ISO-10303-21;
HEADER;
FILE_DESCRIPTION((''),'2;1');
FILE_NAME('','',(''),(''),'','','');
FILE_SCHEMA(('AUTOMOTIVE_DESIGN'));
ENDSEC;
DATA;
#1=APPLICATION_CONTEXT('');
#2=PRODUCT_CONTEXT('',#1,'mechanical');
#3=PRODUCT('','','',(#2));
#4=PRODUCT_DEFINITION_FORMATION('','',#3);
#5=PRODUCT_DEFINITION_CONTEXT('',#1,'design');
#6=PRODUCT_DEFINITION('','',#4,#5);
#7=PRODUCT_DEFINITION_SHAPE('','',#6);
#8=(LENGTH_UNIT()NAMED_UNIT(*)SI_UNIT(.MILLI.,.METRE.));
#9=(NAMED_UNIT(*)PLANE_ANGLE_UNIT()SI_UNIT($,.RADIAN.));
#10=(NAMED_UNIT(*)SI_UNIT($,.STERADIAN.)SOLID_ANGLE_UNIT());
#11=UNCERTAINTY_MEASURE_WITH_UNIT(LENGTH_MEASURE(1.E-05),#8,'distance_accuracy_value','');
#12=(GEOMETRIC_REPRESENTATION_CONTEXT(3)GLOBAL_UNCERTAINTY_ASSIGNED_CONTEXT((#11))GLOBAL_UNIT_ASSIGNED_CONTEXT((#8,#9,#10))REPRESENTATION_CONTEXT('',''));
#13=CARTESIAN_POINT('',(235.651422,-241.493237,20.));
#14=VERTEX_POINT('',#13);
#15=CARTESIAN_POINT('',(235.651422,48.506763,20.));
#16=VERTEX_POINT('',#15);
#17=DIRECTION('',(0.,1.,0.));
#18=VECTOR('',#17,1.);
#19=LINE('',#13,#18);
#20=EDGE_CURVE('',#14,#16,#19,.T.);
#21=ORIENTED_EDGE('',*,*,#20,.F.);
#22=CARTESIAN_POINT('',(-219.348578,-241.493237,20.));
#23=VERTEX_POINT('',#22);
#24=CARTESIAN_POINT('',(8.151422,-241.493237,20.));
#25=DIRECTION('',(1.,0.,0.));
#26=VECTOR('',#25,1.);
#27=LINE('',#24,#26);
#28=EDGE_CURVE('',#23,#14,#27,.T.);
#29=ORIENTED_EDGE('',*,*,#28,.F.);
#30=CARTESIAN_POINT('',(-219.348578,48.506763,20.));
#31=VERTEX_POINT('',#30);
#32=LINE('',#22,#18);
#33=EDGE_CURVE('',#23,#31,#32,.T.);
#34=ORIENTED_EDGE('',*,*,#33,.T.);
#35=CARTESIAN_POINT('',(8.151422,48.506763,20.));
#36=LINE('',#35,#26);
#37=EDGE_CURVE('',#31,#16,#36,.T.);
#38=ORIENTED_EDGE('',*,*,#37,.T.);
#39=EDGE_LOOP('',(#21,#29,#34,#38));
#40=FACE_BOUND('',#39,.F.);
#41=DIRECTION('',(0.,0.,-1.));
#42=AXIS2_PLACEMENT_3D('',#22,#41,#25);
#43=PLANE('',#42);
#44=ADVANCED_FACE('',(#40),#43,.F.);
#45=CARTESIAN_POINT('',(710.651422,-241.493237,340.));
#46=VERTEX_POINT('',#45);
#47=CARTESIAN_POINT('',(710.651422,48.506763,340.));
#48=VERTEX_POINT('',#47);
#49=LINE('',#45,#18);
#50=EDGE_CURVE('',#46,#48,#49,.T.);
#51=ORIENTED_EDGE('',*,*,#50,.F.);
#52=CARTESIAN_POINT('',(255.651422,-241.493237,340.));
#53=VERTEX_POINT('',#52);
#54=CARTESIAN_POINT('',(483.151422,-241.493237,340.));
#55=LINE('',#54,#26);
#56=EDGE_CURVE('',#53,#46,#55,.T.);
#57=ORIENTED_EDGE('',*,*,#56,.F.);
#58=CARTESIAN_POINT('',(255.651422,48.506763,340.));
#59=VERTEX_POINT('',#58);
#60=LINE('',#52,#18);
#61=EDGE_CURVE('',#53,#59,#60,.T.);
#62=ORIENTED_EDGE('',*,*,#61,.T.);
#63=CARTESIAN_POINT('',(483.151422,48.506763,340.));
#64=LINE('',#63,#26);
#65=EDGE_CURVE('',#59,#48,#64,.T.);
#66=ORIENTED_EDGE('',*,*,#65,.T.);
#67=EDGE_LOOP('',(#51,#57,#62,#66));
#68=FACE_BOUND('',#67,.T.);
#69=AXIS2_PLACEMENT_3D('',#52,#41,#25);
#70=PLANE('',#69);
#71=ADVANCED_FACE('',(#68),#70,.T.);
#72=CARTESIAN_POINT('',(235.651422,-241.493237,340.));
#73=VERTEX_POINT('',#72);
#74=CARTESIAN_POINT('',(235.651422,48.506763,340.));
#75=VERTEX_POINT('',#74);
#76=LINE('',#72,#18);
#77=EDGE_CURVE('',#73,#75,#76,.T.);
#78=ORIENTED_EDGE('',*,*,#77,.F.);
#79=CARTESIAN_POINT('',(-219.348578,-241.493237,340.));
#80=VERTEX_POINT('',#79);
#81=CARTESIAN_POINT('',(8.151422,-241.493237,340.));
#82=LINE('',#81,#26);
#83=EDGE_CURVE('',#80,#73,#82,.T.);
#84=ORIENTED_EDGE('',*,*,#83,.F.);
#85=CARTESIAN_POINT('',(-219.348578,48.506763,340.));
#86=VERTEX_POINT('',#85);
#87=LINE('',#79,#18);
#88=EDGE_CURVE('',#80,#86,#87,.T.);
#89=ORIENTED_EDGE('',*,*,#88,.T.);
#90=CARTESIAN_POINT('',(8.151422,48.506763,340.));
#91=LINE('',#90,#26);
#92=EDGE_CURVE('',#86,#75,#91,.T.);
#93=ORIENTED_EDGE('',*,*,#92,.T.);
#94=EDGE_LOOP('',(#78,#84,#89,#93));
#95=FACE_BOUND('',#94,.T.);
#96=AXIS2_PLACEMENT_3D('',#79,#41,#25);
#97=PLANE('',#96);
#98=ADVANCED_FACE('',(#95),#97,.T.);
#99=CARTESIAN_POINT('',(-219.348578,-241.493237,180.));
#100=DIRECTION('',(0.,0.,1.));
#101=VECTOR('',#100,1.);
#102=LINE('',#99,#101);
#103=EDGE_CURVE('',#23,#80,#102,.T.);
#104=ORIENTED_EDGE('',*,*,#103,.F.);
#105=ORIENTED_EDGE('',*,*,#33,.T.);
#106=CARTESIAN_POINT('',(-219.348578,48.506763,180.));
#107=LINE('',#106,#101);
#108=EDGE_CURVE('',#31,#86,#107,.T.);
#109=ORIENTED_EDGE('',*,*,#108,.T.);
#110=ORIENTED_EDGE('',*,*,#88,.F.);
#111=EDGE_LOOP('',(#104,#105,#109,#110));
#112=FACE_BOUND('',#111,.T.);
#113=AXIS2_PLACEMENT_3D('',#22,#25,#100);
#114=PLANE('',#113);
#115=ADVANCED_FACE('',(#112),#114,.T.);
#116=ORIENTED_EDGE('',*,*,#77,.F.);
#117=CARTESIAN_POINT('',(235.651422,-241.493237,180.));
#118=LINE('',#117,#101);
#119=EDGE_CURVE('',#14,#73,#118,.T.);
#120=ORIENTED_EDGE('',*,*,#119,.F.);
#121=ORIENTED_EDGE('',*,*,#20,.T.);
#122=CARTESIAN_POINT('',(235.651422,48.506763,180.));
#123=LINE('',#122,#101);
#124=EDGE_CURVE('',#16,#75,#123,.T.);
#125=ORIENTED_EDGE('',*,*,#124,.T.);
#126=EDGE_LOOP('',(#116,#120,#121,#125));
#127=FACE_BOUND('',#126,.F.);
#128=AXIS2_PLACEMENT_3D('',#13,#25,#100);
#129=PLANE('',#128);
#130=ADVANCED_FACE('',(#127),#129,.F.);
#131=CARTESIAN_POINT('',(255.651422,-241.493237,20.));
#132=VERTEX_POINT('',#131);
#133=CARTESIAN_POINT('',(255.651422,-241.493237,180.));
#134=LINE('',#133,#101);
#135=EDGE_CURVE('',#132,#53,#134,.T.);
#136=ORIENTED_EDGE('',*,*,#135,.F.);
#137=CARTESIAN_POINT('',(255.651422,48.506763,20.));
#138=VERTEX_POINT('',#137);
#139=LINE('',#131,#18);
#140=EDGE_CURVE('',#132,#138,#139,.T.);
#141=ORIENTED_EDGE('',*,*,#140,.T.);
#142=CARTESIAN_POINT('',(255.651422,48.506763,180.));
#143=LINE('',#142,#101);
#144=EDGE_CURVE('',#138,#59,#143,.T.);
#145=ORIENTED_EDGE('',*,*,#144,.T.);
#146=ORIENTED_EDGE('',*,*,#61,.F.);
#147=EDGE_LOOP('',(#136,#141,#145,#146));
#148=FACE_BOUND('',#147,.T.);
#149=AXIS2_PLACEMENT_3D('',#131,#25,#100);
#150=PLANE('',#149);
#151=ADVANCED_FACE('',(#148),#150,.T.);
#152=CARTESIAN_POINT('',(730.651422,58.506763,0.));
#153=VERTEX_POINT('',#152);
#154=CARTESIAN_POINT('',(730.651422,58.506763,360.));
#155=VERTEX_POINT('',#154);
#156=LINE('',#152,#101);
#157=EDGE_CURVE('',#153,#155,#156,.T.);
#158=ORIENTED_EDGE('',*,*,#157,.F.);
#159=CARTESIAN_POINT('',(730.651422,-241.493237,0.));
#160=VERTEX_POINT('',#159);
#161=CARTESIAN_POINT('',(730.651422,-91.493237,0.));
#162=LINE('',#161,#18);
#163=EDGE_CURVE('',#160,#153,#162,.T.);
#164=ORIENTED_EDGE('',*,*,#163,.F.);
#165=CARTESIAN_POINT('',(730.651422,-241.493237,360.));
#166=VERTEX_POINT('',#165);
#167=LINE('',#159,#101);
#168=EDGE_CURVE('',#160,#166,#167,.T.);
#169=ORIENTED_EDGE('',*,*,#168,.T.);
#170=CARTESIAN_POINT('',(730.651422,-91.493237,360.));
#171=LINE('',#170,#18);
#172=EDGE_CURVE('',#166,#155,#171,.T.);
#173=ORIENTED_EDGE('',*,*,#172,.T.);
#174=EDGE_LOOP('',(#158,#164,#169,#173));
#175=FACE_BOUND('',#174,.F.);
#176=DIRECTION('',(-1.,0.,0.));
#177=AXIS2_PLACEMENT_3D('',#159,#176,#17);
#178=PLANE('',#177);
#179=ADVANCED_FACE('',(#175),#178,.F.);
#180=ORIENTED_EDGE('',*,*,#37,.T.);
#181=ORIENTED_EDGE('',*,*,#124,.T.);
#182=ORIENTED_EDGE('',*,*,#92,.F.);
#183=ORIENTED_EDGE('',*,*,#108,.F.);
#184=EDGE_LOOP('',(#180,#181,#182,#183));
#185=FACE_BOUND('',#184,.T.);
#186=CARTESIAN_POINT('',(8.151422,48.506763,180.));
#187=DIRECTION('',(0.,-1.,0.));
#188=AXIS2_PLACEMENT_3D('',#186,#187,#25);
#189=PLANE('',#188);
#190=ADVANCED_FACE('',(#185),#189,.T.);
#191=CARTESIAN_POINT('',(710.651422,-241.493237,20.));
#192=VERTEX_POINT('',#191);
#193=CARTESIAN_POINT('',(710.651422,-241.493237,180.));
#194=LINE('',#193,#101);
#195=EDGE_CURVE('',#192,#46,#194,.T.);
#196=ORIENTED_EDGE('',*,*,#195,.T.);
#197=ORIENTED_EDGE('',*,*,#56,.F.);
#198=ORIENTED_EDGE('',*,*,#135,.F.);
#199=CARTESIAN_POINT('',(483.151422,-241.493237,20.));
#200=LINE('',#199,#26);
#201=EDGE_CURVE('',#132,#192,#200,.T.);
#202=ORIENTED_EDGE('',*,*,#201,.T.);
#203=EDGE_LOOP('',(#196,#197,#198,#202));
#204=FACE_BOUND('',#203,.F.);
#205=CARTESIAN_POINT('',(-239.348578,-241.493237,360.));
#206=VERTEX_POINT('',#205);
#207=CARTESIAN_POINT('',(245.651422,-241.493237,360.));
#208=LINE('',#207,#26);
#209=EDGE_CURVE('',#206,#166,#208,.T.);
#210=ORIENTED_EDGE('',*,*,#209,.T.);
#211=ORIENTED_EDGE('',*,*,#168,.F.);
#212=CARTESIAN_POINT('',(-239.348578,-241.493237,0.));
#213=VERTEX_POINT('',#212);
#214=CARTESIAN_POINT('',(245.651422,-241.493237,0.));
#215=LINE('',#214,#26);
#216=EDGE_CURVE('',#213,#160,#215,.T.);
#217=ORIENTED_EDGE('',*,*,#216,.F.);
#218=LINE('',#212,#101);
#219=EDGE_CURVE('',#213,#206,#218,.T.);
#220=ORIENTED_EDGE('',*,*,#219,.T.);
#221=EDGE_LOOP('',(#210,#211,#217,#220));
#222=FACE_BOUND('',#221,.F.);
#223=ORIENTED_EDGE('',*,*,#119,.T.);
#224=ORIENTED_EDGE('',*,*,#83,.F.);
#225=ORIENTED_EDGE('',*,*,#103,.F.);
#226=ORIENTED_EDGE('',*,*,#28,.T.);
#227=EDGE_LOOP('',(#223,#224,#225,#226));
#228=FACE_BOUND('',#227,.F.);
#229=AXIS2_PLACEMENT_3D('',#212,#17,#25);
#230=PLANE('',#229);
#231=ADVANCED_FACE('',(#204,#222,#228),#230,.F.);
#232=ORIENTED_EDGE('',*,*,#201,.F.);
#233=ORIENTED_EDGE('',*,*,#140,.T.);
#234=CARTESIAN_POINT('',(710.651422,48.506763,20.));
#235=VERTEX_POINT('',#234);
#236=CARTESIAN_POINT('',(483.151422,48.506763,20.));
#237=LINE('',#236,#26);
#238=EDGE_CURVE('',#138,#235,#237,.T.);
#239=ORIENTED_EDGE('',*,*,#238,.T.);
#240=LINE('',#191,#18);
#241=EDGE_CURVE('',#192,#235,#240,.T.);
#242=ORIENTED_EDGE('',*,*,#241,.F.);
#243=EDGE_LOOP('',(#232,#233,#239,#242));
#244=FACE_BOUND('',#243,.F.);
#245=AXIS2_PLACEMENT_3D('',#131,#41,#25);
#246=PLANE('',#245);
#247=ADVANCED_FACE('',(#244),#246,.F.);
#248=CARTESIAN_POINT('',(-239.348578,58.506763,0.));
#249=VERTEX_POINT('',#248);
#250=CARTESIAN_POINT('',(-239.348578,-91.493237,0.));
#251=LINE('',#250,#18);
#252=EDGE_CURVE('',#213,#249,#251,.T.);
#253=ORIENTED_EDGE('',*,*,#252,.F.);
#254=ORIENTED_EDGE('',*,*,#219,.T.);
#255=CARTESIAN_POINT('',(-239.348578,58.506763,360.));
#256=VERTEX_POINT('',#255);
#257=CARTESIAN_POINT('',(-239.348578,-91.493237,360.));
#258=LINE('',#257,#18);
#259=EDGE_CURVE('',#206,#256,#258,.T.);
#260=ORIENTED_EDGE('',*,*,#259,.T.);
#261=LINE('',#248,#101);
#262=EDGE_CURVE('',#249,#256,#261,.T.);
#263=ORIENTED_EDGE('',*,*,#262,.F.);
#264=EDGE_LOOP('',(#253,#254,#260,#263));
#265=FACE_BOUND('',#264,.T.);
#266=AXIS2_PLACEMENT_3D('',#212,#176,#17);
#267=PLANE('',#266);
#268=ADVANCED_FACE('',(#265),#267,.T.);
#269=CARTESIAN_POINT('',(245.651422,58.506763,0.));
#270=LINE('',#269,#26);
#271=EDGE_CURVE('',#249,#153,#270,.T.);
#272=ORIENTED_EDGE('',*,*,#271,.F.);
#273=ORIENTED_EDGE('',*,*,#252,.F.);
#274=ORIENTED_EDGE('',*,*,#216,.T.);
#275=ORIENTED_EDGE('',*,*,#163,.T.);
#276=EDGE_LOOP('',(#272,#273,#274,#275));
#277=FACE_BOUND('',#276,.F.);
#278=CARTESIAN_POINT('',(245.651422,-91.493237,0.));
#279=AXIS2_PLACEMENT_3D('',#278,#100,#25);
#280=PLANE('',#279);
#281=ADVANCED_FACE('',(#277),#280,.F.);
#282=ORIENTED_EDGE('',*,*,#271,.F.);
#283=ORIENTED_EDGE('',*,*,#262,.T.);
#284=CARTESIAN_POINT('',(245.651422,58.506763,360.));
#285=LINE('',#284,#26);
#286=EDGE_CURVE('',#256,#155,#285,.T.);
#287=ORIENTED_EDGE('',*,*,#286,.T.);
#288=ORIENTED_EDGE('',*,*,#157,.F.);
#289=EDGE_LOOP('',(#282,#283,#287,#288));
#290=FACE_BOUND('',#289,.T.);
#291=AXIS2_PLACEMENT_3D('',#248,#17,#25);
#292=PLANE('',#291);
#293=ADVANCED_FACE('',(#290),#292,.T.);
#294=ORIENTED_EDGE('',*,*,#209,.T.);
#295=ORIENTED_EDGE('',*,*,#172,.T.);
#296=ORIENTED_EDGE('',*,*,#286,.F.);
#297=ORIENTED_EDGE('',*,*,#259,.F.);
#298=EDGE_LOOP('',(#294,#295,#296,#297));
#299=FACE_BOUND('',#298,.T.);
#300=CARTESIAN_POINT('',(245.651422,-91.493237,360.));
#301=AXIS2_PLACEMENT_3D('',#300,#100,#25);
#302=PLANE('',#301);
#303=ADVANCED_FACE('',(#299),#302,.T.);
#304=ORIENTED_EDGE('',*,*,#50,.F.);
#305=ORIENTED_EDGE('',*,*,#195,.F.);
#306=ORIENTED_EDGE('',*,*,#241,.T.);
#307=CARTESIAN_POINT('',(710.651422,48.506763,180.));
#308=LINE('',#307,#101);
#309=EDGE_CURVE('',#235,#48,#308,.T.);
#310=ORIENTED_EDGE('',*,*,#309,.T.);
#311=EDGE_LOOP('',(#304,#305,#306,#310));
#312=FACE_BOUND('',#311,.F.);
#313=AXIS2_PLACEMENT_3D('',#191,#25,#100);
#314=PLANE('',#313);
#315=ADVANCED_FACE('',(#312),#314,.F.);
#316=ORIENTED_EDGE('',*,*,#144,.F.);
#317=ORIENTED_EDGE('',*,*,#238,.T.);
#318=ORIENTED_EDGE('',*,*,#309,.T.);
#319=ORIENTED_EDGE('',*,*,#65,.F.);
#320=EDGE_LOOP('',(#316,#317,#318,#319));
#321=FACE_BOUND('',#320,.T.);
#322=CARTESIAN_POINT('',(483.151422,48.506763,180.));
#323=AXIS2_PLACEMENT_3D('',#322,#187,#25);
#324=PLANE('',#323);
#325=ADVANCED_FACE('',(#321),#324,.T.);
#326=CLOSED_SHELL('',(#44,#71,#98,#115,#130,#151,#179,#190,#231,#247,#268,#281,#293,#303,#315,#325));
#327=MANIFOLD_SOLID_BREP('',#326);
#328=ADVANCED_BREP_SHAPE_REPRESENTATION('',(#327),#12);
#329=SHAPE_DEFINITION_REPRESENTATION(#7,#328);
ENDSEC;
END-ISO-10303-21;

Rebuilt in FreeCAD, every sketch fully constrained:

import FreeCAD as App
import Part
import Sketcher
from FreeCAD import Vector
Q = App.Units.Quantity


def add_polygon(sketch, points):
    """Adds a closed chain of lines whose ends are joined by coincident constraints."""
    first, n = sketch.GeometryCount, len(points)
    for a, b in zip(points, points[1:] + points[:1]):
        sketch.addGeometry(Part.LineSegment(App.Vector(*a, 0), App.Vector(*b, 0)), False)
    for i in range(n):
        sketch.addConstraint(Sketcher.Constraint("Coincident", first + i, 2, first + (i + 1) % n, 1))

doc = App.newDocument("Part")
body = doc.addObject("PartDesign::Body", "Body")

sketch1 = body.newObject("Sketcher::SketchObject", "Sketch")
sketch1.AttachmentSupport = (doc.getObject("XY_Plane"), [""])
sketch1.MapMode = "FlatFace"
add_polygon(sketch1, [(-239, 59), (-239, -241), (731, -241), (731, 59)])
sketch1.addConstraint([
    Sketcher.Constraint("Vertical", 0),
    Sketcher.Constraint("Horizontal", 1),
    Sketcher.Constraint("Vertical", 2),
    Sketcher.Constraint("Horizontal", 3),
    Sketcher.Constraint("DistanceX", 1, 1, 1, 2, Q("970 mm")),
    Sketcher.Constraint("DistanceY", 0, 2, 0, 1, Q("300 mm")),
    Sketcher.Constraint("DistanceX", 0, 2, -1, 1, Q("239.348578 mm")),
    Sketcher.Constraint("DistanceY", 0, 2, -1, 1, Q("241.493237 mm")),
])
pad1 = body.newObject("PartDesign::Pad", "Pad")
pad1.Profile = sketch1
pad1.Length = 360

sketch2 = body.newObject("Sketcher::SketchObject", "Sketch001")
sketch2.AttachmentSupport = (doc.getObject("XZ_Plane"), [""])
sketch2.MapMode = "FlatFace"
sketch2.AttachmentOffset = App.Placement(Vector(0, 0, 241.493237), App.Rotation())
add_polygon(sketch2, [(-219, 340), (-219, 20), (236, 20), (236, 340)])
sketch2.addConstraint([
    Sketcher.Constraint("Vertical", 0),
    Sketcher.Constraint("Horizontal", 1),
    Sketcher.Constraint("Vertical", 2),
    Sketcher.Constraint("Horizontal", 3),
    Sketcher.Constraint("DistanceX", 1, 1, 1, 2, Q("455 mm")),
    Sketcher.Constraint("DistanceY", 0, 2, 0, 1, Q("320 mm")),
    Sketcher.Constraint("DistanceY", -1, 1, 0, 2, Q("20 mm")),
    Sketcher.Constraint("DistanceX", 0, 2, -1, 1, Q("219.348578 mm")),
])
pocket1 = body.newObject("PartDesign::Pocket", "Pocket")
pocket1.Profile = sketch2
pocket1.Length = 290

sketch3 = body.newObject("Sketcher::SketchObject", "Sketch002")
sketch3.AttachmentSupport = (doc.getObject("XZ_Plane"), [""])
sketch3.MapMode = "FlatFace"
sketch3.AttachmentOffset = App.Placement(Vector(0, 0, 241.493237), App.Rotation())
add_polygon(sketch3, [(256, 340), (256, 20), (711, 20), (711, 340)])
sketch3.addConstraint([
    Sketcher.Constraint("Vertical", 0),
    Sketcher.Constraint("Horizontal", 1),
    Sketcher.Constraint("Vertical", 2),
    Sketcher.Constraint("Horizontal", 3),
    Sketcher.Constraint("DistanceX", 1, 1, 1, 2, Q("455 mm")),
    Sketcher.Constraint("DistanceY", 0, 2, 0, 1, Q("320 mm")),
    Sketcher.Constraint("DistanceY", -1, 1, 0, 2, Q("20 mm")),
    Sketcher.Constraint("DistanceX", -1, 1, 0, 2, Q("255.651422 mm")),
])
pocket2 = body.newObject("PartDesign::Pocket", "Pocket001")
pocket2.Profile = sketch3
pocket2.Length = 290

doc.recompute()
